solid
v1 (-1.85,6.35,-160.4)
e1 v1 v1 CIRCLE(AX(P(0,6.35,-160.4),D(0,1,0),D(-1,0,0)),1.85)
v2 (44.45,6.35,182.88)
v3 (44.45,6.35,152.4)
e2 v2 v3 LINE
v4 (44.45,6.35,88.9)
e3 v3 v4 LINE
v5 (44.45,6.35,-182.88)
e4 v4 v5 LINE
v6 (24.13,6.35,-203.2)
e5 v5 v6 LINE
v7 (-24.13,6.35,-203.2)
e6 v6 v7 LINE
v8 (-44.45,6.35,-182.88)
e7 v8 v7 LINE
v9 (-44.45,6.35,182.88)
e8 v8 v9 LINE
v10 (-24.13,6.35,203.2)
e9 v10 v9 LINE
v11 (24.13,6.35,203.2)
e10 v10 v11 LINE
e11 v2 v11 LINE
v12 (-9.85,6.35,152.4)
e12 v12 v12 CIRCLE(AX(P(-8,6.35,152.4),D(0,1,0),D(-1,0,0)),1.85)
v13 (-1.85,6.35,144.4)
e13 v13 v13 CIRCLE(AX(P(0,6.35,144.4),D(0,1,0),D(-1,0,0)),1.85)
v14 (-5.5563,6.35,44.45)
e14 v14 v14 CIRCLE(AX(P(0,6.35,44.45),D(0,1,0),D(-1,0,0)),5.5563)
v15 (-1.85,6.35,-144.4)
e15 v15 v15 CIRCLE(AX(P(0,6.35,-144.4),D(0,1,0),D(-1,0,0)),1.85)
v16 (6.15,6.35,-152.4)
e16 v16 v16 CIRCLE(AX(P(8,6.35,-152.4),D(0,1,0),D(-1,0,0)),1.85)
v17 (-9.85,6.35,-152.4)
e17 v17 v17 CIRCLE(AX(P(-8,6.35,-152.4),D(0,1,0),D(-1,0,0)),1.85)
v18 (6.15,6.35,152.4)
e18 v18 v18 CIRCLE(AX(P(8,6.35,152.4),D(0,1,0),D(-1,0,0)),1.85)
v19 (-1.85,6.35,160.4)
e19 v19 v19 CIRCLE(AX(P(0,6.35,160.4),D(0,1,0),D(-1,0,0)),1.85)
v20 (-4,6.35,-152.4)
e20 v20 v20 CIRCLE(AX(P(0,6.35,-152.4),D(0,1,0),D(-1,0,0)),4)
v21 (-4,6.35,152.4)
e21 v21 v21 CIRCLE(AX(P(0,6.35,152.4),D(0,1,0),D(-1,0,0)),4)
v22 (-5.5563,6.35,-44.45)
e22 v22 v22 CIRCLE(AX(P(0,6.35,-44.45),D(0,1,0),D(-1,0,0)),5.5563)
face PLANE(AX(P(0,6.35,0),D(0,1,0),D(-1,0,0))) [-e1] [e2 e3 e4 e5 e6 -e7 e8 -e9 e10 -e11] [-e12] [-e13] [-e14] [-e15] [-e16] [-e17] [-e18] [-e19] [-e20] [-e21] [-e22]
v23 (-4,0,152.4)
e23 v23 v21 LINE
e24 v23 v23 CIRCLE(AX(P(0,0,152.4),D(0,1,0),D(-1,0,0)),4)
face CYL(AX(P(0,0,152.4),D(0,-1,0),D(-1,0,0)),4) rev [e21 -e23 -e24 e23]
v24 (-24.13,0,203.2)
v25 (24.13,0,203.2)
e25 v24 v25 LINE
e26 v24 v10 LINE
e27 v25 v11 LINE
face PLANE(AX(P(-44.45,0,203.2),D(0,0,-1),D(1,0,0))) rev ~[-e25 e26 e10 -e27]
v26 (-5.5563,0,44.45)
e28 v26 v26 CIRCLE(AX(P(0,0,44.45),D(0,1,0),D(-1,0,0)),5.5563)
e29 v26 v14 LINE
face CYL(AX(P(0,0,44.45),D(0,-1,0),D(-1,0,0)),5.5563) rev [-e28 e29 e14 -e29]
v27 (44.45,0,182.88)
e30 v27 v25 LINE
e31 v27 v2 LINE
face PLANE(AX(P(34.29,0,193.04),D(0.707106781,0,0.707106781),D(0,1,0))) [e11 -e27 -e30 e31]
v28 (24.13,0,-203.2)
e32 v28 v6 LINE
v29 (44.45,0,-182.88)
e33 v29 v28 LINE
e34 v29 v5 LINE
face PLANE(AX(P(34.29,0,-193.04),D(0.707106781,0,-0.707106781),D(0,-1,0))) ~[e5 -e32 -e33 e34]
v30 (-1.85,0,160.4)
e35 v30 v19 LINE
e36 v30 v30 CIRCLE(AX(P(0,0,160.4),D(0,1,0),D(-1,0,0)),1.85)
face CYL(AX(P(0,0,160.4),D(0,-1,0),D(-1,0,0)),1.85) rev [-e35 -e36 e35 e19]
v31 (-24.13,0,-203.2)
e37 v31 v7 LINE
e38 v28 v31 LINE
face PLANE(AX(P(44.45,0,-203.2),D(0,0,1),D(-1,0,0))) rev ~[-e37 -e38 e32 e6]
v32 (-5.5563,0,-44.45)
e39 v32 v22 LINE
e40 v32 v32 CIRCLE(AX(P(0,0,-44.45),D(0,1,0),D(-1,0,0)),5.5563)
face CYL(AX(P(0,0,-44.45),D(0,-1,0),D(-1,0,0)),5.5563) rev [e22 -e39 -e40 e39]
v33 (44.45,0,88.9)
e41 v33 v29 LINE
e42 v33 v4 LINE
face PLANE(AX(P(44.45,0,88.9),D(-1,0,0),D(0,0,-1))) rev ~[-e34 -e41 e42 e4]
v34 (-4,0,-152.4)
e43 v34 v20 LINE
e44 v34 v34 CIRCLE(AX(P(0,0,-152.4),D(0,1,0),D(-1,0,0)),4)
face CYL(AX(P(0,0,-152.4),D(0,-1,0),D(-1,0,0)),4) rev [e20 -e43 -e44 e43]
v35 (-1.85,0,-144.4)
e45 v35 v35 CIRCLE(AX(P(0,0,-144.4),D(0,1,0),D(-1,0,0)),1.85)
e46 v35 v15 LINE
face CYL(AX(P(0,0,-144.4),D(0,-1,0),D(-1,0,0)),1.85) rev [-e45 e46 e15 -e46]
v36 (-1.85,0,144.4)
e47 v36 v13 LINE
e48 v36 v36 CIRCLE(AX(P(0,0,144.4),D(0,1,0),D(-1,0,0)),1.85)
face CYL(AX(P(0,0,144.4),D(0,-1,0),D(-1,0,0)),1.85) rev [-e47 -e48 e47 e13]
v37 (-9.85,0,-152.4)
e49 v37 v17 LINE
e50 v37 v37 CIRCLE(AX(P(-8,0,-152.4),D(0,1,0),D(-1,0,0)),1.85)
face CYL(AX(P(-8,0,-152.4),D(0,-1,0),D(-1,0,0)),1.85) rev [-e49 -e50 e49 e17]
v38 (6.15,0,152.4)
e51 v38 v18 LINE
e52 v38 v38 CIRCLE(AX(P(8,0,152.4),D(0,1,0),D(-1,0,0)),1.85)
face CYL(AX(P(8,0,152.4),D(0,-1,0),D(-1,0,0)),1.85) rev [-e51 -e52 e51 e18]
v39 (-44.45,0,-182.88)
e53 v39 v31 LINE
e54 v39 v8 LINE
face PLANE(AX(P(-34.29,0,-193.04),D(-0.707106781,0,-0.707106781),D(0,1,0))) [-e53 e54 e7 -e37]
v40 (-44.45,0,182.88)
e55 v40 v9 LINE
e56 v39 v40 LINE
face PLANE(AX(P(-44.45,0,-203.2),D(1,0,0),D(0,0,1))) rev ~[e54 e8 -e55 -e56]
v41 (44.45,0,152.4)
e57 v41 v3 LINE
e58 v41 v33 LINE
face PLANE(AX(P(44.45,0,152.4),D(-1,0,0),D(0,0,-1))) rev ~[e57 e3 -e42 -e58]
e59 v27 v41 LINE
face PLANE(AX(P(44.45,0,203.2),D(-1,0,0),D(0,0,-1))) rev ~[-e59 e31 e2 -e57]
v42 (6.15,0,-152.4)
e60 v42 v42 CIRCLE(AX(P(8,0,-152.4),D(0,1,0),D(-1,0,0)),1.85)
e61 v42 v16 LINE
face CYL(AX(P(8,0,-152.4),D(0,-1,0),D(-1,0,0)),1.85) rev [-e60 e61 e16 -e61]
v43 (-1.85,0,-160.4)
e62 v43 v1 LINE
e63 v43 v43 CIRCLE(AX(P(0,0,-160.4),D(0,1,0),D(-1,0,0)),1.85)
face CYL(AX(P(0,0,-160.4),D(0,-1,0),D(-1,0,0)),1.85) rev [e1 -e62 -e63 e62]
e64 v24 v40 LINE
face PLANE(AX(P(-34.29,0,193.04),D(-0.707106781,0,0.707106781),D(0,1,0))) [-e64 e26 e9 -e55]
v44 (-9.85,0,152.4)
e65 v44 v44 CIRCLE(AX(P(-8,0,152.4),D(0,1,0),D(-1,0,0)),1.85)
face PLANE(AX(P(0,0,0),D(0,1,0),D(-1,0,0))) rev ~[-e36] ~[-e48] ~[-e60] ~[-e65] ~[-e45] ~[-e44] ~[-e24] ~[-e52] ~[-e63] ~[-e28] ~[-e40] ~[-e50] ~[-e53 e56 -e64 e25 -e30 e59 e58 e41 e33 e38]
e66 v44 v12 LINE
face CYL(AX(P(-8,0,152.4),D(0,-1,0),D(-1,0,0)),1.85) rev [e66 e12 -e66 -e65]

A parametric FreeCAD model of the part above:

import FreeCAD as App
import Part
import Sketcher

V = App.Vector
Q = App.Units.Quantity


def edges_at(feature, points):
    """Names of the edges that pass closest to the given points."""
    edges = feature.Shape.Edges
    near = lambda p: min(range(len(edges)), key=lambda i: edges[i].distToShape(Part.Vertex(*p))[0])
    return sorted({f"Edge{near(p) + 1}" for p in points})


def add_polygon(sketch, points):
    """Adds a closed chain of lines whose ends are joined by coincident constraints."""
    first, n = sketch.GeometryCount, len(points)
    for a, b in zip(points, points[1:] + points[:1]):
        sketch.addGeometry(Part.LineSegment(App.Vector(*a, 0), App.Vector(*b, 0)), False)
    for i in range(n):
        sketch.addConstraint(Sketcher.Constraint("Coincident", first + i, 2, first + (i + 1) % n, 1))

doc = App.newDocument("Part")
body = doc.addObject("PartDesign::Body", "Body")

sketch1 = doc.addObject("Sketcher::SketchObject", "Sketch")
body.addObject(sketch1)
sketch1.AttachmentSupport = (doc.XZ_Plane, [""])
sketch1.MapMode = "FlatFace"
add_polygon(sketch1, [(44.5, 203.2), (44.5, -203.2), (-44.5, -203.2), (-44.5, 203.2)])
sketch1.addGeometry(Part.Circle(V(8, -152.4, 0), V(0, 0, 1), 1.9), False)
sketch1.addGeometry(Part.Circle(V(0, -160.4, 0), V(0, 0, 1), 1.9), False)
sketch1.addGeometry(Part.Circle(V(0, -152.4, 0), V(0, 0, 1), 4), False)
sketch1.addGeometry(Part.Circle(V(-8, -152.4, 0), V(0, 0, 1), 1.9), False)
sketch1.addGeometry(Part.Circle(V(0, -144.4, 0), V(0, 0, 1), 1.9), False)
sketch1.addGeometry(Part.Circle(V(0, -44.5, 0), V(0, 0, 1), 5.6), False)
sketch1.addGeometry(Part.Circle(V(8, 152.4, 0), V(0, 0, 1), 1.9), False)
sketch1.addGeometry(Part.Circle(V(0, 44.5, 0), V(0, 0, 1), 5.6), False)
sketch1.addGeometry(Part.Circle(V(0, 144.4, 0), V(0, 0, 1), 1.9), False)
sketch1.addGeometry(Part.Circle(V(0, 152.4, 0), V(0, 0, 1), 4), False)
sketch1.addGeometry(Part.Circle(V(0, 160.4, 0), V(0, 0, 1), 1.9), False)
sketch1.addGeometry(Part.Circle(V(-8, 152.4, 0), V(0, 0, 1), 1.9), False)
sketch1.addConstraint(Sketcher.Constraint("Vertical", 0))
sketch1.addConstraint(Sketcher.Constraint("Horizontal", 1))
sketch1.addConstraint(Sketcher.Constraint("Vertical", 2))
sketch1.addConstraint(Sketcher.Constraint("Horizontal", 3))
sketch1.addConstraint(Sketcher.Constraint("Equal", 4, 5))
sketch1.addConstraint(Sketcher.Constraint("Equal", 5, 7))
sketch1.addConstraint(Sketcher.Constraint("Equal", 7, 8))
sketch1.addConstraint(Sketcher.Constraint("Equal", 8, 10))
sketch1.addConstraint(Sketcher.Constraint("Equal", 9, 11))
sketch1.addConstraint(Sketcher.Constraint("Equal", 10, 12))
sketch1.addConstraint(Sketcher.Constraint("Equal", 6, 13))
sketch1.addConstraint(Sketcher.Constraint("Equal", 12, 14))
sketch1.addConstraint(Sketcher.Constraint("Equal", 14, 15))
sketch1.addConstraint(Sketcher.Constraint("Symmetric", 7, 3, 10, 3, -1, 1))
sketch1.addConstraint(Sketcher.Constraint("Symmetric", 9, 3, 11, 3, -1, 1))
sketch1.addConstraint(Sketcher.Constraint("Symmetric", 8, 3, 12, 3, -1, 1))
sketch1.addConstraint(Sketcher.Constraint("Symmetric", 6, 3, 13, 3, -1, 1))
sketch1.addConstraint(Sketcher.Constraint("Symmetric", 5, 3, 14, 3, -1, 1))
sketch1.addConstraint(Sketcher.Constraint("Symmetric", 4, 3, 15, 3, -1, 1))
sketch1.addConstraint(Sketcher.Constraint("Symmetric", 0, 2, 2, 2, -1, 1))
sketch1.addConstraint(Sketcher.Constraint("Symmetric", 4, 3, 7, 3, -2))
sketch1.addConstraint(Sketcher.Constraint("PointOnObject", 5, 3, -2))
sketch1.addConstraint(Sketcher.Constraint("PointOnObject", 6, 3, -2))
sketch1.addConstraint(Sketcher.Constraint("PointOnObject", 8, 3, -2))
sketch1.addConstraint(Sketcher.Constraint("PointOnObject", 9, 3, -2))
sketch1.addConstraint(Sketcher.Constraint("Horizontal", 4, 3, 6, 3))
sketch1.addConstraint(Sketcher.Constraint("DistanceY", 0, 2, 0, 1, Q("16 in")))
sketch1.addConstraint(Sketcher.Constraint("Diameter", 9, Q("0.4375 in")))
sketch1.addConstraint(Sketcher.Constraint("DistanceX", 1, 2, 1, 1, Q("3.5 in")))
sketch1.addConstraint(Sketcher.Constraint("DistanceY", 4, 3, -1, 1, Q("6 in")))
sketch1.addConstraint(Sketcher.Constraint("DistanceY", 9, 3, 11, 3, Q("3.5 in")))
sketch1.addConstraint(Sketcher.Constraint("Diameter", 4, 3.7))
sketch1.addConstraint(Sketcher.Constraint("Diameter", 6, 8.0))
sketch1.addConstraint(Sketcher.Constraint("DistanceX", -1, 1, 4, 3, 8.0))
sketch1.addConstraint(Sketcher.Constraint("DistanceY", 5, 3, 4, 3, 8.0))
sketch1.addConstraint(Sketcher.Constraint("DistanceY", 6, 3, 8, 3, 8.0))
pad1 = doc.addObject("PartDesign::Pad", "Pad")
body.addObject(pad1)
pad1.Profile = sketch1
pad1.Length = Q("0.25 in")
pad1.Reversed = True
doc.recompute()

chamfer = doc.addObject("PartDesign::Chamfer", "Chamfer")
body.addObject(chamfer)
chamfer.Base = (pad1, edges_at(pad1, [
    (-44.45, 3.175, 203.2),
    (44.45, 3.175, 203.2),
    (44.45, 3.175, -203.2),
    (-44.45, 3.175, -203.2),
]))
chamfer.Size = Q("0.8 in")

doc.recompute()
